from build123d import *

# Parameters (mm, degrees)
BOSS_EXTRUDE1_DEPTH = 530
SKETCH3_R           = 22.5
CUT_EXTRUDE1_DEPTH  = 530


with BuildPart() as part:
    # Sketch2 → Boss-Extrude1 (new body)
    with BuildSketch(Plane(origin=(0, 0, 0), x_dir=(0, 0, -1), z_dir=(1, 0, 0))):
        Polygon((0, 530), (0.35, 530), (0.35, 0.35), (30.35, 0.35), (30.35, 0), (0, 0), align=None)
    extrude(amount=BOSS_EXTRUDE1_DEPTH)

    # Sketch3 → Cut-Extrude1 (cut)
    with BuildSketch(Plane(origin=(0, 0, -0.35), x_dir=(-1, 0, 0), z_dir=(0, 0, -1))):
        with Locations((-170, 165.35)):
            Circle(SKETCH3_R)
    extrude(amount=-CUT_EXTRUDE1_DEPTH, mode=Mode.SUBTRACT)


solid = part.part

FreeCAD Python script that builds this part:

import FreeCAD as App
import Part
import Sketcher
from FreeCAD import Vector


def add_polygon(sketch, points):
    """Adds a closed chain of lines whose ends are joined by coincident constraints."""
    first, n = sketch.GeometryCount, len(points)
    for a, b in zip(points, points[1:] + points[:1]):
        sketch.addGeometry(Part.LineSegment(App.Vector(*a, 0), App.Vector(*b, 0)), False)
    for i in range(n):
        sketch.addConstraint(Sketcher.Constraint("Coincident", first + i, 2, first + (i + 1) % n, 1))

doc = App.newDocument("Part")
body = doc.addObject("PartDesign::Body", "Body")

# Sketch on YZ plane
sketch1 = body.newObject("Sketcher::SketchObject", "Sketch")
sketch1.AttachmentSupport = (doc.getObject("YZ_Plane"), [""])
sketch1.MapMode = "FlatFace"
add_polygon(sketch1, [(530, -0.35), (530, 0), (0, 0), (0, -30.35), (0.35, -30.35), (0.35, -0.35)])  # lines 0-5
sketch1.addConstraint(Sketcher.Constraint("Vertical", 0))
sketch1.addConstraint(Sketcher.Constraint("Horizontal", 1))
sketch1.addConstraint(Sketcher.Constraint("Vertical", 2))
sketch1.addConstraint(Sketcher.Constraint("Horizontal", 3))
sketch1.addConstraint(Sketcher.Constraint("Vertical", 4))
sketch1.addConstraint(Sketcher.Constraint("Horizontal", 5))
sketch1.addConstraint(Sketcher.Constraint("Coincident", 1, 2, -1, 1))
sketch1.addConstraint(Sketcher.Constraint("Equal", 3, 0))
sketch1.addConstraint(Sketcher.Constraint("DistanceX", 1, 2, 1, 1, 530.0))
sketch1.addConstraint(Sketcher.Constraint("DistanceY", 4, 1, 4, 2, 30.0))
sketch1.addConstraint(Sketcher.Constraint("DistanceX", 3, 1, 3, 2, 0.35))
pad1 = body.newObject("PartDesign::Pad", "Pad")
pad1.Profile = sketch1
pad1.Length = 530

# Sketch on XY plane
sketch2 = body.newObject("Sketcher::SketchObject", "Sketch001")
sketch2.AttachmentSupport = (doc.getObject("XY_Plane"), [""])
sketch2.MapMode = "FlatFace"
sketch2.AttachmentOffset = App.Placement(Vector(0, 0, -0.35), App.Rotation())
sketch2.addGeometry(Part.Circle(Vector(170, 165, 0), Vector(0, 0, 1), 22), False)
sketch2.addConstraint(Sketcher.Constraint("Diameter", 0, 45.0))
sketch2.addConstraint(Sketcher.Constraint("DistanceX", -1, 1, 0, 3, 170.0))
sketch2.addConstraint(Sketcher.Constraint("DistanceY", -1, 1, 0, 3, 165.35))
pocket1 = body.newObject("PartDesign::Pocket", "Pocket")
pocket1.Profile = sketch2
pocket1.Length = 530
pocket1.Reversed = True

doc.recompute()
